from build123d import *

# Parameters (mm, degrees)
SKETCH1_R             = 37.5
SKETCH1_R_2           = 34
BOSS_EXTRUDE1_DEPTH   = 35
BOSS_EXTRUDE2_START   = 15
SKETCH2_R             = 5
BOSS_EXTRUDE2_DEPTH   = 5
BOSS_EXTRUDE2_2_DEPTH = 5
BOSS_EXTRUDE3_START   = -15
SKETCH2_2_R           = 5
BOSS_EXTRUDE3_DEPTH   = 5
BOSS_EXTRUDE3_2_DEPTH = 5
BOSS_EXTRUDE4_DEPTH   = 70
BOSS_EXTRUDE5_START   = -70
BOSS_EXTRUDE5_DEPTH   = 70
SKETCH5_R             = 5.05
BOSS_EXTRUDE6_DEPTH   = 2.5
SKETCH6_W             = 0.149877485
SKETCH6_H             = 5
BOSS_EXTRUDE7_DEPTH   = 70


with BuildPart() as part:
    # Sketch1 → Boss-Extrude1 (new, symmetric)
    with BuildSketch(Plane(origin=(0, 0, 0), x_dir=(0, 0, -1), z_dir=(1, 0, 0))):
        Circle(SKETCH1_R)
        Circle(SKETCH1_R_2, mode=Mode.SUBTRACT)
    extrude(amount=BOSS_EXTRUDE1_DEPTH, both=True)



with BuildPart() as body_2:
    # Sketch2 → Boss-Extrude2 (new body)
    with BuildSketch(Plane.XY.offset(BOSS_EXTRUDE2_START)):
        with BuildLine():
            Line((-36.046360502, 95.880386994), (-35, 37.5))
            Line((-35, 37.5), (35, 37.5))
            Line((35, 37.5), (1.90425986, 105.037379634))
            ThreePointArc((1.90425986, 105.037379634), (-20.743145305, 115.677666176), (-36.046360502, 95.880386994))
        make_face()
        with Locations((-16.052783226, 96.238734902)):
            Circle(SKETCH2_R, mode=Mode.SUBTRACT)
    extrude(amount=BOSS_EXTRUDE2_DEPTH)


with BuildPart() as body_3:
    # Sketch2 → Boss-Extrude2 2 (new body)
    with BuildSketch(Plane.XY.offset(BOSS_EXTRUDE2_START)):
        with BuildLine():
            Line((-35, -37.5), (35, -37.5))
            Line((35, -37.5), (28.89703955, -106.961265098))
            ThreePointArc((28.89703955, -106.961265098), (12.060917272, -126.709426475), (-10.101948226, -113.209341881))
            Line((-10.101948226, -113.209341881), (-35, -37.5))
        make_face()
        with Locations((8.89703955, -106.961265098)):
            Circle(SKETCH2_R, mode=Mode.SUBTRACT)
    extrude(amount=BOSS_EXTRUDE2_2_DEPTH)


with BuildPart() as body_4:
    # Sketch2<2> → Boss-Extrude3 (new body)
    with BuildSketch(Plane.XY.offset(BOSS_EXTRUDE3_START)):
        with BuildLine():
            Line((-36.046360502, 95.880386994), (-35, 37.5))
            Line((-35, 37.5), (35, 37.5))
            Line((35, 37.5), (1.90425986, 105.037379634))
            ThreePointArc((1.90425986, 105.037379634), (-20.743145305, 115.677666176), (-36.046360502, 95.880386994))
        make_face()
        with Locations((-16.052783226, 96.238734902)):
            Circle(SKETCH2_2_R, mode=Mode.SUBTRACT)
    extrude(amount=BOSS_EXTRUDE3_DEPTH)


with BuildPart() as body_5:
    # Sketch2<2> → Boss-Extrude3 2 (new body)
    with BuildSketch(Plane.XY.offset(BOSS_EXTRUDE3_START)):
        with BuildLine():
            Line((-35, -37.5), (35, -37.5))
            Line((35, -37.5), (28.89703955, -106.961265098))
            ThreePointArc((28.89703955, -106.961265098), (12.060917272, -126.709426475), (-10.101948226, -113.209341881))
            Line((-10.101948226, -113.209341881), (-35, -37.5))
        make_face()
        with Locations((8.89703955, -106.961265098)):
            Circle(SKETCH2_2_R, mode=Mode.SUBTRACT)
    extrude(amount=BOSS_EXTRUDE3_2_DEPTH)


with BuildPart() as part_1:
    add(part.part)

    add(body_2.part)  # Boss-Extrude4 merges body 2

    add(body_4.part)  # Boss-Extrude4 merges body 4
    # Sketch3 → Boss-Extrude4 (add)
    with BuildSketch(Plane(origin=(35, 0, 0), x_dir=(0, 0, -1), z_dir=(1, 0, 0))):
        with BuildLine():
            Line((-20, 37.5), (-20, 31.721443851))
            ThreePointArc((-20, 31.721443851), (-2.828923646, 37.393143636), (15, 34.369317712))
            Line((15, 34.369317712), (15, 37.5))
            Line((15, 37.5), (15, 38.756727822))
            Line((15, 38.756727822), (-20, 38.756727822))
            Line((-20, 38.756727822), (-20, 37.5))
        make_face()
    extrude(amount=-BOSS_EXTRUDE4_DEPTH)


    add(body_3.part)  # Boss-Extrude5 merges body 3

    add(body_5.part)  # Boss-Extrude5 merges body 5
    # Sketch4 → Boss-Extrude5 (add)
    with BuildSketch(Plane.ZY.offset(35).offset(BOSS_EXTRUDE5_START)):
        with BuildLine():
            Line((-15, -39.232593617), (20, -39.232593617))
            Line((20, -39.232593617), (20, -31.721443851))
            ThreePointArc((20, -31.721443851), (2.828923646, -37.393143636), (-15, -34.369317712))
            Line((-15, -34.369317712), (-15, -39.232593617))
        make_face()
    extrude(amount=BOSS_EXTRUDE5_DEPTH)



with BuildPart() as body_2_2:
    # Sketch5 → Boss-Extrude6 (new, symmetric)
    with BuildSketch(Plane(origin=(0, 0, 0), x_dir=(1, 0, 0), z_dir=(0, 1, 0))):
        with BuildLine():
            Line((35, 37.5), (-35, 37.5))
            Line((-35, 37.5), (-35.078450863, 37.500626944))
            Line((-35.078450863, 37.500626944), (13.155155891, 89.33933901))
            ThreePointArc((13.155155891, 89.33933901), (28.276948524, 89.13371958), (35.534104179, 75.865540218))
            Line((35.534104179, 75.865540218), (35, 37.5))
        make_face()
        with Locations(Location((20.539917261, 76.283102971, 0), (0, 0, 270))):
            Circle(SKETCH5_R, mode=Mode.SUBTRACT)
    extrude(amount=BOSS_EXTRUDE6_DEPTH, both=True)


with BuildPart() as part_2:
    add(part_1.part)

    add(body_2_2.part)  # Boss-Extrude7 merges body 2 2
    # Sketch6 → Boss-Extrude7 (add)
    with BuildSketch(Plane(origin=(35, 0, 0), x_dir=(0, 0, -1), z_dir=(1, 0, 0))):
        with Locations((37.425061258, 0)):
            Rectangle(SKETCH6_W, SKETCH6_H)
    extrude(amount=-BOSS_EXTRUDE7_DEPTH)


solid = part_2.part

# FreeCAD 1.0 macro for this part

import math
import FreeCAD as App
import Part
import Sketcher
Q = App.Units.Quantity


def add_polygon(sketch, points):
    """Adds a closed chain of lines whose ends are joined by coincident constraints."""
    first, n = sketch.GeometryCount, len(points)
    for a, b in zip(points, points[1:] + points[:1]):
        sketch.addGeometry(Part.LineSegment(App.Vector(*a, 0), App.Vector(*b, 0)), False)
    for i in range(n):
        sketch.addConstraint(Sketcher.Constraint("Coincident", first + i, 2, first + (i + 1) % n, 1))

doc = App.newDocument("Part")
params = doc.addObject("Spreadsheet::Sheet", "Params")
for row, (alias, value) in enumerate([
    ("sketch1_diameter", "75 mm"),
    ("sketch1_diameter2", "68 mm"),
    ("pad1_length", "70 mm"),
    ("sketch2_diameter", "10 mm"),
    ("sketch2_width", "70 mm"),
    ("pad2_length", "5 mm"),
    ("sketch3_diameter", "10 mm"),
    ("sketch3_radius", "20 mm"),
    ("sketch3_width", "70 mm"),
    ("pad3_length", "5 mm"),
    ("sketch4_diameter", "10 mm"),
    ("sketch4_width", "70 mm"),
    ("pad4_length", "5 mm"),
    ("sketch5_diameter", "10 mm"),
    ("sketch5_radius", "20 mm"),
    ("sketch5_width", "70 mm"),
    ("pad5_length", "5 mm"),
    ("sketch6_radius", "37.5 mm"),
    ("sketch6_height", "35 mm"),
    ("pad6_length", "70 mm"),
    ("sketch7_radius", "37.5 mm"),
    ("sketch7_height", "35 mm"),
    ("pad7_length", "70 mm"),
    ("sketch8_radius", "15 mm"),
    ("sketch8_diameter", "10.1 mm"),
    ("sketch8_width", "70 mm"),
    ("pad8_length", "5 mm"),
    ("sketch9_width", "5 mm"),
    ("pad9_length", "70 mm"),
], start=1):
    params.set(f"A{row}", alias)
    params.set(f"B{row}", "=" + value)
    params.setAlias(f"B{row}", alias)

body = doc.addObject("PartDesign::Body", "Body")

# Sketch on YZ plane
sketch1 = doc.addObject("Sketcher::SketchObject", "Sketch")
body.addObject(sketch1)
sketch1.AttachmentSupport = (doc.YZ_Plane, [""])
sketch1.MapMode = "FlatFace"
sketch1.addGeometry([
    Part.Circle(App.Vector(0, 0, 0), App.Vector(0, 0, 1), 38),
    Part.Circle(App.Vector(0, 0, 0), App.Vector(0, 0, 1), 34),
], False)
sketch1.addConstraint([
    Sketcher.Constraint("Coincident", 0, 3, -1, 1),
    Sketcher.Constraint("Coincident", 1, 3, -1, 1),
    Sketcher.Constraint("Diameter", 0, Q("75 mm")),
    Sketcher.Constraint("Diameter", 1, Q("68 mm")),
])
sketch1.setExpression("Constraints[2]", "Params.sketch1_diameter")
sketch1.setExpression("Constraints[3]", "Params.sketch1_diameter2")
pad1 = doc.addObject("PartDesign::Pad", "Pad")
body.addObject(pad1)
pad1.Profile = sketch1
pad1.setExpression("Length", "Params.pad1_length")
pad1.Midplane = True
body2 = doc.addObject("PartDesign::Body", "Body001")

# Sketch on XY plane
sketch2 = doc.addObject("Sketcher::SketchObject", "Sketch001")
body2.addObject(sketch2)
sketch2.AttachmentSupport = (doc.getObject("XY_Plane001"), [""])
sketch2.MapMode = "FlatFace"
sketch2.AttachmentOffset = App.Placement(App.Vector(0, 0, 15), App.Rotation())
sketch2.addGeometry([
    Part.LineSegment(App.Vector(-36, 96, 0), App.Vector(-35, 38, 0)),  # 0
    Part.LineSegment(App.Vector(-35, 38, 0), App.Vector(35, 38, 0)),  # 1
    Part.LineSegment(App.Vector(35, 38, 0), App.Vector(2, 105, 0)),  # 2
    Part.ArcOfCircle(Part.Circle(App.Vector(-16, 96, 0), App.Vector(0, 0, 1), 20), math.radians(26), math.radians(181)),  # 3
    Part.Circle(App.Vector(-16, 96, 0), App.Vector(0, 0, 1), 5),  # 4
], False)
sketch2.addConstraint([
    Sketcher.Constraint("Coincident", 0, 2, 1, 1),
    Sketcher.Constraint("Coincident", 1, 2, 2, 1),
    Sketcher.Constraint("Coincident", 2, 2, 3, 1),
    Sketcher.Constraint("Tangent", 3, 2, 0, 1),
    Sketcher.Constraint("Horizontal", 1),
    Sketcher.Constraint("Coincident", 4, 3, 3, 3),
    Sketcher.Constraint("Diameter", 4, Q("10 mm")),
    Sketcher.Constraint("DistanceX", 1, 1, 1, 2, Q("70 mm")),
    Sketcher.Constraint("DistanceX", 0, 2, -1, 1, Q("35 mm")),
    Sketcher.Constraint("DistanceY", -1, 1, 0, 2, Q("37.5 mm")),
    Sketcher.Constraint("Radius", 3, Q("19.996788 mm")),
    Sketcher.Constraint("DistanceX", -1, 1, 2, 2, Q("1.90426 mm")),
    Sketcher.Constraint("DistanceY", -1, 1, 2, 2, Q("105.03738 mm")),
    Sketcher.Constraint("DistanceX", 3, 2, -1, 1, Q("36.046361 mm")),
])
sketch2.setExpression("Constraints[6]", "Params.sketch2_diameter")
sketch2.setExpression("Constraints[7]", "Params.sketch2_width")
pad2 = doc.addObject("PartDesign::Pad", "Pad001")
body2.addObject(pad2)
pad2.Profile = sketch2
pad2.setExpression("Length", "Params.pad2_length")
body3 = doc.addObject("PartDesign::Body", "Body002")

# Sketch on XY plane
sketch3 = doc.addObject("Sketcher::SketchObject", "Sketch002")
body3.addObject(sketch3)
sketch3.AttachmentSupport = (doc.getObject("XY_Plane002"), [""])
sketch3.MapMode = "FlatFace"
sketch3.AttachmentOffset = App.Placement(App.Vector(0, 0, 15), App.Rotation())
sketch3.addGeometry([
    Part.LineSegment(App.Vector(35, -38, 0), App.Vector(-35, -38, 0)),  # 0
    Part.LineSegment(App.Vector(-35, -38, 0), App.Vector(-10, -113, 0)),  # 1
    Part.ArcOfCircle(Part.Circle(App.Vector(9, -107, 0), App.Vector(0, 0, 1), 20), math.radians(-162), math.radians(0)),  # 2
    Part.LineSegment(App.Vector(29, -107, 0), App.Vector(35, -38, 0)),  # 3
    Part.Circle(App.Vector(9, -107, 0), App.Vector(0, 0, 1), 5),  # 4
], False)
sketch3.addConstraint([
    Sketcher.Constraint("Coincident", 0, 2, 1, 1),
    Sketcher.Constraint("Tangent", 1, 2, 2, 1),
    Sketcher.Constraint("Coincident", 2, 2, 3, 1),
    Sketcher.Constraint("Coincident", 3, 2, 0, 1),
    Sketcher.Constraint("Horizontal", 0),
    Sketcher.Constraint("Coincident", 4, 3, 2, 3),
    Sketcher.Constraint("Horizontal", 4, 3, 2, 2),
    Sketcher.Constraint("Diameter", 4, Q("10 mm")),
    Sketcher.Constraint("Radius", 2, Q("20 mm")),
    Sketcher.Constraint("DistanceX", 0, 2, 0, 1, Q("70 mm")),
    Sketcher.Constraint("DistanceX", 0, 2, -1, 1, Q("35 mm")),
    Sketcher.Constraint("DistanceY", 0, 2, -1, 1, Q("37.5 mm")),
    Sketcher.Constraint("Distance", 1, Q("79.69829 mm")),
    Sketcher.Constraint("DistanceX", -1, 1, 2, 3, Q("8.89704 mm")),
])
sketch3.setExpression("Constraints[7]", "Params.sketch3_diameter")
sketch3.setExpression("Constraints[8]", "Params.sketch3_radius")
sketch3.setExpression("Constraints[9]", "Params.sketch3_width")
pad3 = doc.addObject("PartDesign::Pad", "Pad002")
body3.addObject(pad3)
pad3.Profile = sketch3
pad3.setExpression("Length", "Params.pad3_length")
body4 = doc.addObject("PartDesign::Body", "Body003")

# Sketch on XY plane
sketch4 = doc.addObject("Sketcher::SketchObject", "Sketch003")
body4.addObject(sketch4)
sketch4.AttachmentSupport = (doc.getObject("XY_Plane003"), [""])
sketch4.MapMode = "FlatFace"
sketch4.AttachmentOffset = App.Placement(App.Vector(0, 0, -15), App.Rotation())
sketch4.addGeometry([
    Part.LineSegment(App.Vector(-36, 96, 0), App.Vector(-35, 38, 0)),  # 0
    Part.LineSegment(App.Vector(-35, 38, 0), App.Vector(35, 38, 0)),  # 1
    Part.LineSegment(App.Vector(35, 38, 0), App.Vector(2, 105, 0)),  # 2
    Part.ArcOfCircle(Part.Circle(App.Vector(-16, 96, 0), App.Vector(0, 0, 1), 20), math.radians(26), math.radians(181)),  # 3
    Part.Circle(App.Vector(-16, 96, 0), App.Vector(0, 0, 1), 5),  # 4
], False)
sketch4.addConstraint([
    Sketcher.Constraint("Coincident", 0, 2, 1, 1),
    Sketcher.Constraint("Coincident", 1, 2, 2, 1),
    Sketcher.Constraint("Coincident", 2, 2, 3, 1),
    Sketcher.Constraint("Tangent", 3, 2, 0, 1),
    Sketcher.Constraint("Horizontal", 1),
    Sketcher.Constraint("Coincident", 4, 3, 3, 3),
    Sketcher.Constraint("Diameter", 4, Q("10 mm")),
    Sketcher.Constraint("DistanceX", 1, 1, 1, 2, Q("70 mm")),
    Sketcher.Constraint("DistanceX", 0, 2, -1, 1, Q("35 mm")),
    Sketcher.Constraint("DistanceY", -1, 1, 0, 2, Q("37.5 mm")),
    Sketcher.Constraint("Radius", 3, Q("19.996788 mm")),
    Sketcher.Constraint("DistanceX", -1, 1, 2, 2, Q("1.90426 mm")),
    Sketcher.Constraint("DistanceY", -1, 1, 2, 2, Q("105.03738 mm")),
    Sketcher.Constraint("DistanceX", 3, 2, -1, 1, Q("36.046361 mm")),
])
sketch4.setExpression("Constraints[6]", "Params.sketch4_diameter")
sketch4.setExpression("Constraints[7]", "Params.sketch4_width")
pad4 = doc.addObject("PartDesign::Pad", "Pad003")
body4.addObject(pad4)
pad4.Profile = sketch4
pad4.setExpression("Length", "Params.pad4_length")
body5 = doc.addObject("PartDesign::Body", "Body004")

# Sketch on XY plane
sketch5 = doc.addObject("Sketcher::SketchObject", "Sketch004")
body5.addObject(sketch5)
sketch5.AttachmentSupport = (doc.getObject("XY_Plane004"), [""])
sketch5.MapMode = "FlatFace"
sketch5.AttachmentOffset = App.Placement(App.Vector(0, 0, -15), App.Rotation())
sketch5.addGeometry([
    Part.LineSegment(App.Vector(35, -38, 0), App.Vector(-35, -38, 0)),  # 0
    Part.LineSegment(App.Vector(-35, -38, 0), App.Vector(-10, -113, 0)),  # 1
    Part.ArcOfCircle(Part.Circle(App.Vector(9, -107, 0), App.Vector(0, 0, 1), 20), math.radians(-162), math.radians(0)),  # 2
    Part.LineSegment(App.Vector(29, -107, 0), App.Vector(35, -38, 0)),  # 3
    Part.Circle(App.Vector(9, -107, 0), App.Vector(0, 0, 1), 5),  # 4
], False)
sketch5.addConstraint([
    Sketcher.Constraint("Coincident", 0, 2, 1, 1),
    Sketcher.Constraint("Tangent", 1, 2, 2, 1),
    Sketcher.Constraint("Coincident", 2, 2, 3, 1),
    Sketcher.Constraint("Coincident", 3, 2, 0, 1),
    Sketcher.Constraint("Horizontal", 0),
    Sketcher.Constraint("Coincident", 4, 3, 2, 3),
    Sketcher.Constraint("Horizontal", 4, 3, 2, 2),
    Sketcher.Constraint("Diameter", 4, Q("10 mm")),
    Sketcher.Constraint("Radius", 2, Q("20 mm")),
    Sketcher.Constraint("DistanceX", 0, 2, 0, 1, Q("70 mm")),
    Sketcher.Constraint("DistanceX", 0, 2, -1, 1, Q("35 mm")),
    Sketcher.Constraint("DistanceY", 0, 2, -1, 1, Q("37.5 mm")),
    Sketcher.Constraint("Distance", 1, Q("79.69829 mm")),
    Sketcher.Constraint("DistanceX", -1, 1, 2, 3, Q("8.89704 mm")),
])
sketch5.setExpression("Constraints[7]", "Params.sketch5_diameter")
sketch5.setExpression("Constraints[8]", "Params.sketch5_radius")
sketch5.setExpression("Constraints[9]", "Params.sketch5_width")
pad5 = doc.addObject("PartDesign::Pad", "Pad004")
body5.addObject(pad5)
pad5.Profile = sketch5
pad5.setExpression("Length", "Params.pad5_length")
body.AllowCompound = True
doc.recompute()

boolean = doc.addObject("PartDesign::Boolean", "Boolean")
body.addObject(boolean)
boolean.Type = "Fuse"
boolean.addObjects([body2])
doc.recompute()

boolean2 = doc.addObject("PartDesign::Boolean", "Boolean001")
body.addObject(boolean2)
boolean2.Type = "Fuse"
boolean2.addObjects([body4])

# Sketch on YZ plane
sketch6 = doc.addObject("Sketcher::SketchObject", "Sketch005")
body.addObject(sketch6)
sketch6.AttachmentSupport = (doc.YZ_Plane, [""])
sketch6.MapMode = "FlatFace"
sketch6.AttachmentOffset = App.Placement(App.Vector(0, 0, 35), App.Rotation())
sketch6.addGeometry([
    Part.ArcOfCircle(Part.Circle(App.Vector(0, 0, 0), App.Vector(0, 0, 1), 37.5), math.radians(-24), math.radians(32)),
    Part.LineSegment(App.Vector(34.4, -15, 0), App.Vector(38.8, -15, 0)),
    Part.LineSegment(App.Vector(38.8, -15, 0), App.Vector(38.8, 20, 0)),
    Part.LineSegment(App.Vector(38.8, 20, 0), App.Vector(31.7, 20, 0)),
], False)
sketch6.addConstraint([
    Sketcher.Constraint("Coincident", 0, 1, 1, 1),
    Sketcher.Constraint("Coincident", 1, 2, 2, 1),
    Sketcher.Constraint("Coincident", 2, 2, 3, 1),
    Sketcher.Constraint("Coincident", 3, 2, 0, 2),
    Sketcher.Constraint("Horizontal", 1),
    Sketcher.Constraint("Vertical", 2),
    Sketcher.Constraint("Horizontal", 3),
    Sketcher.Constraint("Coincident", 0, 3, -1, 1),
    Sketcher.Constraint("Radius", 0, Q("37.5 mm")),
    Sketcher.Constraint("DistanceY", 2, 1, 2, 2, Q("35 mm")),
    Sketcher.Constraint("DistanceY", 0, 1, -1, 1, Q("15 mm")),
    Sketcher.Constraint("DistanceX", 1, 1, 1, 2, Q("4.38741 mm")),
])
sketch6.setExpression("Constraints[8]", "Params.sketch6_radius")
sketch6.setExpression("Constraints[9]", "Params.sketch6_height")
pad6 = doc.addObject("PartDesign::Pad", "Pad005")
body.addObject(pad6)
pad6.Profile = sketch6
pad6.setExpression("Length", "Params.pad6_length")
pad6.Reversed = True
doc.recompute()

boolean3 = doc.addObject("PartDesign::Boolean", "Boolean002")
body.addObject(boolean3)
boolean3.Type = "Fuse"
boolean3.addObjects([body3])
doc.recompute()

boolean4 = doc.addObject("PartDesign::Boolean", "Boolean003")
body.addObject(boolean4)
boolean4.Type = "Fuse"
boolean4.addObjects([body5])

# Sketch on YZ plane
sketch7 = doc.addObject("Sketcher::SketchObject", "Sketch006")
body.addObject(sketch7)
sketch7.AttachmentSupport = (doc.YZ_Plane, [""])
sketch7.MapMode = "FlatFace"
sketch7.AttachmentOffset = App.Placement(App.Vector(0, 0, 35), App.Rotation())
sketch7.addGeometry([
    Part.LineSegment(App.Vector(-39.2, -15, 0), App.Vector(-39.2, 20, 0)),
    Part.LineSegment(App.Vector(-39.2, 20, 0), App.Vector(-31.7, 20, 0)),
    Part.ArcOfCircle(Part.Circle(App.Vector(0, 0, 0), App.Vector(0, 0, 1), 37.5), math.radians(148), math.radians(204)),
    Part.LineSegment(App.Vector(-34.4, -15, 0), App.Vector(-39.2, -15, 0)),
], False)
sketch7.addConstraint([
    Sketcher.Constraint("Coincident", 0, 2, 1, 1),
    Sketcher.Constraint("Coincident", 1, 2, 2, 1),
    Sketcher.Constraint("Coincident", 2, 2, 3, 1),
    Sketcher.Constraint("Coincident", 3, 2, 0, 1),
    Sketcher.Constraint("Vertical", 0),
    Sketcher.Constraint("Horizontal", 1),
    Sketcher.Constraint("Horizontal", 3),
    Sketcher.Constraint("Coincident", 2, 3, -1, 1),
    Sketcher.Constraint("Radius", 2, Q("37.5 mm")),
    Sketcher.Constraint("DistanceY", 0, 1, 0, 2, Q("35 mm")),
    Sketcher.Constraint("DistanceY", -1, 1, 0, 2, Q("20 mm")),
    Sketcher.Constraint("DistanceX", 1, 1, 1, 2, Q("7.51115 mm")),
])
sketch7.setExpression("Constraints[8]", "Params.sketch7_radius")
sketch7.setExpression("Constraints[9]", "Params.sketch7_height")
pad7 = doc.addObject("PartDesign::Pad", "Pad006")
body.addObject(pad7)
pad7.Profile = sketch7
pad7.setExpression("Length", "Params.pad7_length")
pad7.Reversed = True
body6 = doc.addObject("PartDesign::Body", "Body005")

# Sketch on XZ plane
sketch8 = doc.addObject("Sketcher::SketchObject", "Sketch007")
body6.addObject(sketch8)
sketch8.AttachmentSupport = (doc.getObject("XZ_Plane005"), [""])
sketch8.MapMode = "FlatFace"
sketch8.addGeometry([
    Part.LineSegment(App.Vector(-35, -37.5, 0), App.Vector(35, -37.5, 0)),  # 0
    Part.LineSegment(App.Vector(35, -37.5, 0), App.Vector(35.53, -75.87, 0)),  # 1
    Part.ArcOfCircle(Part.Circle(App.Vector(20.54, -76.28, 0), App.Vector(0, 0, 1), 15), math.radians(-119), math.radians(2)),  # 2
    Part.LineSegment(App.Vector(13.16, -89.34, 0), App.Vector(-35.08, -37.5, 0)),  # 3
    Part.LineSegment(App.Vector(-35.08, -37.5, 0), App.Vector(-35, -37.5, 0)),  # 4
    Part.Circle(App.Vector(20.54, -76.28, 0), App.Vector(0, 0, 1), 5.05),  # 5
], False)
sketch8.addConstraint([
    Sketcher.Constraint("Coincident", 0, 2, 1, 1),
    Sketcher.Constraint("Coincident", 1, 2, 2, 2),
    Sketcher.Constraint("Coincident", 2, 1, 3, 1),
    Sketcher.Constraint("Coincident", 3, 2, 4, 1),
    Sketcher.Constraint("Coincident", 4, 2, 0, 1),
    Sketcher.Constraint("Horizontal", 0),
    Sketcher.Constraint("Coincident", 5, 3, 2, 3),
    Sketcher.Constraint("Radius", 2, Q("15 mm")),
    Sketcher.Constraint("Diameter", 5, Q("10.1 mm")),
    Sketcher.Constraint("DistanceX", 0, 1, 0, 2, Q("70 mm")),
    Sketcher.Constraint("DistanceX", -1, 1, 0, 2, Q("35 mm")),
    Sketcher.Constraint("DistanceY", 0, 2, -1, 1, Q("37.5 mm")),
    Sketcher.Constraint("DistanceY", 2, 1, 1, 2, Q("13.473799 mm")),
    Sketcher.Constraint("DistanceY", 1, 2, -1, 1, Q("75.86554 mm")),
    Sketcher.Constraint("DistanceX", 3, 2, -1, 1, Q("35.078451 mm")),
    Sketcher.Constraint("DistanceX", 2, 1, 2, 3, Q("7.384761 mm")),
    Sketcher.Constraint("DistanceX", 3, 2, 2, 3, Q("55.618368 mm")),
    Sketcher.Constraint("Distance", 3, Q("70.807718 mm")),
])
sketch8.setExpression("Constraints[7]", "Params.sketch8_radius")
sketch8.setExpression("Constraints[8]", "Params.sketch8_diameter")
sketch8.setExpression("Constraints[9]", "Params.sketch8_width")
pad8 = doc.addObject("PartDesign::Pad", "Pad007")
body6.addObject(pad8)
pad8.Profile = sketch8
pad8.setExpression("Length", "Params.pad8_length")
pad8.Midplane = True
body.AllowCompound = True
doc.recompute()

boolean5 = doc.addObject("PartDesign::Boolean", "Boolean004")
body.addObject(boolean5)
boolean5.Type = "Fuse"
boolean5.addObjects([body6])

# Sketch on YZ plane
sketch9 = doc.addObject("Sketcher::SketchObject", "Sketch008")
body.addObject(sketch9)
sketch9.AttachmentSupport = (doc.YZ_Plane, [""])
sketch9.MapMode = "FlatFace"
sketch9.AttachmentOffset = App.Placement(App.Vector(0, 0, 35), App.Rotation())
add_polygon(sketch9, [(2.5, -37.35), (-2.5, -37.35), (-2.5, -37.5), (2.5, -37.5)])  # lines 0-3
sketch9.addConstraint([
    Sketcher.Constraint("Horizontal", 0),
    Sketcher.Constraint("Vertical", 1),
    Sketcher.Constraint("Horizontal", 2),
    Sketcher.Constraint("Vertical", 3),
    Sketcher.Constraint("DistanceX", 0, 2, 0, 1, Q("5 mm")),
    Sketcher.Constraint("DistanceX", 0, 2, -1, 1, Q("2.5 mm")),
    Sketcher.Constraint("DistanceY", 1, 2, -1, 1, Q("37.5 mm")),
    Sketcher.Constraint("DistanceY", 1, 2, 1, 1, Q("0.149877 mm")),
])
sketch9.setExpression("Constraints[8]", "Params.sketch9_width")
pad9 = doc.addObject("PartDesign::Pad", "Pad008")
body.addObject(pad9)
pad9.Profile = sketch9
pad9.setExpression("Length", "Params.pad9_length")
pad9.Reversed = True

doc.recompute()
